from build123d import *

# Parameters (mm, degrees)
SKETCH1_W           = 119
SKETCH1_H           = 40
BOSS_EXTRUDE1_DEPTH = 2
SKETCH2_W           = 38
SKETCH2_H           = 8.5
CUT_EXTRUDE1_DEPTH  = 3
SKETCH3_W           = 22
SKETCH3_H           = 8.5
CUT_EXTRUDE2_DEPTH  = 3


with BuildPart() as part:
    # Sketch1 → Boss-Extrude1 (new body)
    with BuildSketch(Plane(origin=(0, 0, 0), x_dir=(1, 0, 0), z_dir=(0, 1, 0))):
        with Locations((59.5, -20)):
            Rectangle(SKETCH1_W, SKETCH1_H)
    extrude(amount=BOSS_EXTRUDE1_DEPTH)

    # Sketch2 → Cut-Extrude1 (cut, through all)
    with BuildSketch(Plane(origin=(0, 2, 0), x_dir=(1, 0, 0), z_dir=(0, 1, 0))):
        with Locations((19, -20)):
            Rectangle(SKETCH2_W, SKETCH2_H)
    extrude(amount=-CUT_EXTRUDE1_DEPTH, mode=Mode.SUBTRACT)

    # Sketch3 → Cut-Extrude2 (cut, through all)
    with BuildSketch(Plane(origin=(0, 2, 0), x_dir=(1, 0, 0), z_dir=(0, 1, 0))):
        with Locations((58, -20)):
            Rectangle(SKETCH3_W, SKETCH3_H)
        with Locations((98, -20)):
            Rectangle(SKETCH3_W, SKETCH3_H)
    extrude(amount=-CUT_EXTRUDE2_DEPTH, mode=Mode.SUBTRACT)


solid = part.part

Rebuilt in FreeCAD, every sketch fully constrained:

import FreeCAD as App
import Part
import Sketcher
Q = App.Units.Quantity


def add_polygon(sketch, points):
    """Adds a closed chain of lines whose ends are joined by coincident constraints."""
    first, n = sketch.GeometryCount, len(points)
    for a, b in zip(points, points[1:] + points[:1]):
        sketch.addGeometry(Part.LineSegment(App.Vector(*a, 0), App.Vector(*b, 0)), False)
    for i in range(n):
        sketch.addConstraint(Sketcher.Constraint("Coincident", first + i, 2, first + (i + 1) % n, 1))

doc = App.newDocument("Part")
body = doc.addObject("PartDesign::Body", "Body")

sketch1 = body.newObject("Sketcher::SketchObject", "Sketch")
sketch1.AttachmentSupport = (doc.getObject("XZ_Plane"), [""])
sketch1.MapMode = "FlatFace"
add_polygon(sketch1, [(0, 0), (0, 40), (119, 40), (119, 0)])
sketch1.addConstraint([
    Sketcher.Constraint("Vertical", 0),
    Sketcher.Constraint("Horizontal", 1),
    Sketcher.Constraint("Vertical", 2),
    Sketcher.Constraint("Horizontal", 3),
    Sketcher.Constraint("Coincident", 3, 2, -1, 1),
    Sketcher.Constraint("DistanceX", 1, 1, 1, 2, Q("119 mm")),
    Sketcher.Constraint("DistanceY", 0, 1, 0, 2, Q("40 mm")),
])
pad1 = body.newObject("PartDesign::Pad", "Pad")
pad1.Profile = sketch1
pad1.Length = 2
pad1.Reversed = True

sketch2 = body.newObject("Sketcher::SketchObject", "Sketch001")
sketch2.AttachmentSupport = (doc.getObject("XZ_Plane"), [""])
sketch2.MapMode = "FlatFace"
sketch2.AttachmentOffset = App.Placement(App.Vector(0, 0, -2), App.Rotation())
add_polygon(sketch2, [(0, 16), (0, 24), (38, 24), (38, 16)])
sketch2.addConstraint([
    Sketcher.Constraint("Vertical", 0),
    Sketcher.Constraint("Horizontal", 1),
    Sketcher.Constraint("Vertical", 2),
    Sketcher.Constraint("Horizontal", 3),
    Sketcher.Constraint("PointOnObject", 0, 2, -2),
    Sketcher.Constraint("DistanceX", 1, 1, 1, 2, Q("38 mm")),
    Sketcher.Constraint("DistanceY", 0, 1, 0, 2, Q("8.5 mm")),
    Sketcher.Constraint("DistanceY", -1, 1, 0, 2, Q("24.25 mm")),
])
pocket1 = body.newObject("PartDesign::Pocket", "Pocket")
pocket1.Profile = sketch2
pocket1.Type = "ThroughAll"
pocket1.Reversed = True

sketch3 = body.newObject("Sketcher::SketchObject", "Sketch002")
sketch3.AttachmentSupport = (doc.getObject("XZ_Plane"), [""])
sketch3.MapMode = "FlatFace"
sketch3.AttachmentOffset = App.Placement(App.Vector(0, 0, -2), App.Rotation())
add_polygon(sketch3, [(47, 16), (47, 24), (69, 24), (69, 16)])
add_polygon(sketch3, [(87, 16), (87, 24), (109, 24), (109, 16)])
sketch3.addConstraint([
    Sketcher.Constraint("Vertical", 0),
    Sketcher.Constraint("Horizontal", 1),
    Sketcher.Constraint("Vertical", 2),
    Sketcher.Constraint("Horizontal", 3),
    Sketcher.Constraint("Vertical", 4),
    Sketcher.Constraint("Horizontal", 5),
    Sketcher.Constraint("Vertical", 6),
    Sketcher.Constraint("Horizontal", 7),
    Sketcher.Constraint("Horizontal", 1, 2, 4, 2),
    Sketcher.Constraint("Horizontal", 3, 2, 6, 2),
    Sketcher.Constraint("Equal", 3, 5),
    Sketcher.Constraint("DistanceX", 1, 1, 1, 2, Q("22 mm")),
    Sketcher.Constraint("DistanceY", 0, 1, 0, 2, Q("8.5 mm")),
    Sketcher.Constraint("DistanceX", -1, 1, 0, 2, Q("47 mm")),
    Sketcher.Constraint("DistanceX", -1, 1, 4, 2, Q("87 mm")),
    Sketcher.Constraint("DistanceY", -1, 1, 0, 2, Q("24.25 mm")),
])
pocket2 = body.newObject("PartDesign::Pocket", "Pocket001")
pocket2.Profile = sketch3
pocket2.Type = "ThroughAll"
pocket2.Reversed = True

doc.recompute()
